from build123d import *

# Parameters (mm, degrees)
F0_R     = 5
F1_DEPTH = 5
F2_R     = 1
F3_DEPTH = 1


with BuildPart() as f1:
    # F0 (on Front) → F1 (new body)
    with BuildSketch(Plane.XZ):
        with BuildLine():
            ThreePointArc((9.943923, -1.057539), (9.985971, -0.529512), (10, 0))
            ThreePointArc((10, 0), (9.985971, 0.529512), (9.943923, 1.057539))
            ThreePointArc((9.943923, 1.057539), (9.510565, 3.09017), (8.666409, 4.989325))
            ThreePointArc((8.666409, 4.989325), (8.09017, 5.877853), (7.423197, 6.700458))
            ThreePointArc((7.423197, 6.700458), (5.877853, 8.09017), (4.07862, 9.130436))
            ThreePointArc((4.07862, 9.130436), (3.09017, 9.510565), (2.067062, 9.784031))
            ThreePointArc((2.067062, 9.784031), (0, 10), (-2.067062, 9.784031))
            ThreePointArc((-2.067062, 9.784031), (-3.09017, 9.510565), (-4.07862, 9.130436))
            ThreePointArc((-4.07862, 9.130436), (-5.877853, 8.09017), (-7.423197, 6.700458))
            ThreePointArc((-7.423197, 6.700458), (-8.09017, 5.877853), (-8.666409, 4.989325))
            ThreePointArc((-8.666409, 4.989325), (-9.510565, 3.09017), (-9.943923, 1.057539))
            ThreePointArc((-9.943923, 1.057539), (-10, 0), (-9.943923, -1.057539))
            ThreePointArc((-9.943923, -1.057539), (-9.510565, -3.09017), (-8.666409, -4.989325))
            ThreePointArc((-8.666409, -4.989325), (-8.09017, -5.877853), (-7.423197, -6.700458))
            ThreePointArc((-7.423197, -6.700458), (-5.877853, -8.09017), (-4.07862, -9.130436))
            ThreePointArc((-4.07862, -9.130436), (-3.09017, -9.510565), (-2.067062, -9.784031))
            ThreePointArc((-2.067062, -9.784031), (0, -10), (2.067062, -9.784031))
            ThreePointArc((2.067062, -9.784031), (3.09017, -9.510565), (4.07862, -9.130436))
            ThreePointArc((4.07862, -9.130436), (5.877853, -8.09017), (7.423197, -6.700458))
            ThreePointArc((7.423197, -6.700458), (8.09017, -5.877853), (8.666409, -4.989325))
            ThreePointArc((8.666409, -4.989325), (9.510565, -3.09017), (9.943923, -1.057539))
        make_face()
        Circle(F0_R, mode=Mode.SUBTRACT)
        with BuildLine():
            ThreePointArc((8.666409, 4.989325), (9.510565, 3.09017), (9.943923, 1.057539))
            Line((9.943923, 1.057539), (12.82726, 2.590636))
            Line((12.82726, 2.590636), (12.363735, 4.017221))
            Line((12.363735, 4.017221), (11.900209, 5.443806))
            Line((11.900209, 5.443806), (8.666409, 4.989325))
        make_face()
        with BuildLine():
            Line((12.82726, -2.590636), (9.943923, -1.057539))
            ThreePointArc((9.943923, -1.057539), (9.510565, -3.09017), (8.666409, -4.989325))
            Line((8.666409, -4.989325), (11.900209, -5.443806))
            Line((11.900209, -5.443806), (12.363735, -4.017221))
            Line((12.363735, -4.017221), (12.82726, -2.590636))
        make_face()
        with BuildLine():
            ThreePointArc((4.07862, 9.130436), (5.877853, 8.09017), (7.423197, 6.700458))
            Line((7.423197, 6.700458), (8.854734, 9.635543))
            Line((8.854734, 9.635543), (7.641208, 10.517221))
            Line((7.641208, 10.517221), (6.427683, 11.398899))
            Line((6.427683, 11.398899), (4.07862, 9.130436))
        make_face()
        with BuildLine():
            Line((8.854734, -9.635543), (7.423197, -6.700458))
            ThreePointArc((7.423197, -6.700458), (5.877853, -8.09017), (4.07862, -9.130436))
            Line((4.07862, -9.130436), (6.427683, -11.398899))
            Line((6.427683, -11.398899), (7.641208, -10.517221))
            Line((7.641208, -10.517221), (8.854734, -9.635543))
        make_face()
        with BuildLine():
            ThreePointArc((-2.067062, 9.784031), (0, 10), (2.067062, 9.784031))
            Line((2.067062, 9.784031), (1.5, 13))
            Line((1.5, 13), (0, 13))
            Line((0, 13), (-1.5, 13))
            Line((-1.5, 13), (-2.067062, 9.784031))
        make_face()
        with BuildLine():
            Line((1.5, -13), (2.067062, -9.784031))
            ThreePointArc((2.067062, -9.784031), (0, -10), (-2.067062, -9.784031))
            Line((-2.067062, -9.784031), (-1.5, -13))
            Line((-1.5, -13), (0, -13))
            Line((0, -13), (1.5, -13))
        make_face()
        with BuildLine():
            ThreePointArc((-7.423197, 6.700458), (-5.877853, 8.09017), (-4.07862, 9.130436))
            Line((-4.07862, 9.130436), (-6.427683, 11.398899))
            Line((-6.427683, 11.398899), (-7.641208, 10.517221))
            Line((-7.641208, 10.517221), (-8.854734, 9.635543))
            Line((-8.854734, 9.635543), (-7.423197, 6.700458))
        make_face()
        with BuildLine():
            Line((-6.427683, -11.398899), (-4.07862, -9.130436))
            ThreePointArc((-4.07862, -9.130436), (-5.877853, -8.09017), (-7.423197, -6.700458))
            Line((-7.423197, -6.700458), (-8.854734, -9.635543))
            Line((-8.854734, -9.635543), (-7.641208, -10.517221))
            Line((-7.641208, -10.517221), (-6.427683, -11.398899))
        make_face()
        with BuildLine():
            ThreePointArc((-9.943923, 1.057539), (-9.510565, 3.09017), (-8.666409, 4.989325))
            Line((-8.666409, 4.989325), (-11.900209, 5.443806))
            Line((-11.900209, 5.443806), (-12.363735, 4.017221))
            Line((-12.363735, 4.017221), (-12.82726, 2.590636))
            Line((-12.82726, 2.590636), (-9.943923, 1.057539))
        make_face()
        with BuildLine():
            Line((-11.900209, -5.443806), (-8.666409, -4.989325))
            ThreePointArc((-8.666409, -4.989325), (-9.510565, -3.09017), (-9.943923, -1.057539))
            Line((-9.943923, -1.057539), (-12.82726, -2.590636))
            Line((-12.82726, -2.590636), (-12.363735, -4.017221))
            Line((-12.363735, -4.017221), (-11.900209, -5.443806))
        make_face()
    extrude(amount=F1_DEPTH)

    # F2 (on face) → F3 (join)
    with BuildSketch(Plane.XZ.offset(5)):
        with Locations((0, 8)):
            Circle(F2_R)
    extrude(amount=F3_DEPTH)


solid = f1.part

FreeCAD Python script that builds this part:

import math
import FreeCAD as App
import Part
import Sketcher
from FreeCAD import Vector
Q = App.Units.Quantity

doc = App.newDocument("Part")
body = doc.addObject("PartDesign::Body", "Body")

# Sketch on XZ plane
sketch1 = body.newObject("Sketcher::SketchObject", "Sketch")
sketch1.AttachmentSupport = (doc.getObject("XZ_Plane"), [""])
sketch1.MapMode = "FlatFace"
sketch1.addGeometry([
    Part.ArcOfCircle(Part.Circle(Vector(0.00011, -0.000003, 0), Vector(0, 0, 1), 9.99989), math.radians(-6.070655), math.radians(0.000015)),  # 0
    Part.ArcOfCircle(Part.Circle(Vector(0.00011, 0.000003, 0), Vector(0, 0, 1), 9.99989), math.radians(-0.000015), math.radians(6.070655)),  # 1
    Part.LineSegment(Vector(9.943923, 1.057539, 0), Vector(12.82726, 2.590636, 0)),  # 2
    Part.LineSegment(Vector(12.82726, 2.590636, 0), Vector(12.363735, 4.017221, 0)),  # 3
    Part.LineSegment(Vector(12.363735, 4.017221, 0), Vector(11.900209, 5.443806, 0)),  # 4
    Part.LineSegment(Vector(11.900209, 5.443806, 0), Vector(8.666409, 4.989325, 0)),  # 5
    Part.ArcOfCircle(Part.Circle(Vector(0.000049, 0.000031, 0), Vector(0, 0, 1), 9.999942), math.radians(29.929387), math.radians(42.070661)),  # 6
    Part.LineSegment(Vector(7.423197, 6.700458, 0), Vector(8.854734, 9.635543, 0)),  # 7
    Part.LineSegment(Vector(8.854734, 9.635543, 0), Vector(7.641208, 10.517221, 0)),  # 8
    Part.LineSegment(Vector(7.641208, 10.517221, 0), Vector(6.427683, 11.398899, 0)),  # 9
    Part.LineSegment(Vector(6.427683, 11.398899, 0), Vector(4.07862, 9.130436, 0)),  # 10
    Part.ArcOfCircle(Part.Circle(Vector(-0.000023, -0.000068, 0), Vector(0, 0, 1), 10.000072), math.radians(65.929437), math.radians(78.070553)),  # 11
    Part.LineSegment(Vector(2.067062, 9.784031, 0), Vector(1.5, 13, 0)),  # 12
    Part.LineSegment(Vector(1.5, 13, 0), Vector(-1.5, 13, 0)),  # 13
    Part.LineSegment(Vector(-1.5, 13, 0), Vector(-2.067062, 9.784031, 0)),  # 14
    Part.ArcOfCircle(Part.Circle(Vector(0.000023, -0.000068, 0), Vector(0, 0, 1), 10.000072), math.radians(101.929447), math.radians(114.070563)),  # 15
    Part.LineSegment(Vector(-4.07862, 9.130436, 0), Vector(-6.427683, 11.398899, 0)),  # 16
    Part.LineSegment(Vector(-6.427683, 11.398899, 0), Vector(-7.641208, 10.517221, 0)),  # 17
    Part.LineSegment(Vector(-7.641208, 10.517221, 0), Vector(-8.854734, 9.635543, 0)),  # 18
    Part.LineSegment(Vector(-8.854734, 9.635543, 0), Vector(-7.423197, 6.700458, 0)),  # 19
    Part.ArcOfCircle(Part.Circle(Vector(-0.000049, 0.000031, 0), Vector(0, 0, 1), 9.999942), math.radians(137.929339), math.radians(150.070613)),  # 20
    Part.LineSegment(Vector(-8.666409, 4.989325, 0), Vector(-11.900209, 5.443806, 0)),  # 21
    Part.LineSegment(Vector(-11.900209, 5.443806, 0), Vector(-12.363735, 4.017221, 0)),  # 22
    Part.LineSegment(Vector(-12.363735, 4.017221, 0), Vector(-12.82726, 2.590636, 0)),  # 23
    Part.LineSegment(Vector(-12.82726, 2.590636, 0), Vector(-9.943923, 1.057539, 0)),  # 24
    Part.ArcOfCircle(Part.Circle(Vector(-0.000059, 0, 0), Vector(0, 0, 1), 9.999941), math.radians(173.92936), math.radians(186.07064)),  # 25
    Part.LineSegment(Vector(-9.943923, -1.057539, 0), Vector(-12.82726, -2.590636, 0)),  # 26
    Part.LineSegment(Vector(-12.82726, -2.590636, 0), Vector(-12.363735, -4.017221, 0)),  # 27
    Part.LineSegment(Vector(-12.363735, -4.017221, 0), Vector(-11.900209, -5.443806, 0)),  # 28
    Part.LineSegment(Vector(-11.900209, -5.443806, 0), Vector(-8.666409, -4.989325, 0)),  # 29
    Part.ArcOfCircle(Part.Circle(Vector(-0.000049, -0.000031, 0), Vector(0, 0, 1), 9.999942), math.radians(-150.070613), math.radians(-137.929339)),  # 30
    Part.LineSegment(Vector(-7.423197, -6.700458, 0), Vector(-8.854734, -9.635543, 0)),  # 31
    Part.LineSegment(Vector(-8.854734, -9.635543, 0), Vector(-7.641208, -10.517221, 0)),  # 32
    Part.LineSegment(Vector(-7.641208, -10.517221, 0), Vector(-6.427683, -11.398899, 0)),  # 33
    Part.LineSegment(Vector(-6.427683, -11.398899, 0), Vector(-4.07862, -9.130436, 0)),  # 34
    Part.ArcOfCircle(Part.Circle(Vector(0.000023, 0.000068, 0), Vector(0, 0, 1), 10.000072), math.radians(-114.070563), math.radians(-101.929447)),  # 35
    Part.LineSegment(Vector(-2.067062, -9.784031, 0), Vector(-1.5, -13, 0)),  # 36
    Part.LineSegment(Vector(-1.5, -13, 0), Vector(1.5, -13, 0)),  # 37
    Part.LineSegment(Vector(1.5, -13, 0), Vector(2.067062, -9.784031, 0)),  # 38
    Part.ArcOfCircle(Part.Circle(Vector(-0.000023, 0.000068, 0), Vector(0, 0, 1), 10.000072), math.radians(-78.070553), math.radians(-65.929437)),  # 39
    Part.LineSegment(Vector(4.07862, -9.130436, 0), Vector(6.427683, -11.398899, 0)),  # 40
    Part.LineSegment(Vector(6.427683, -11.398899, 0), Vector(7.641208, -10.517221, 0)),  # 41
    Part.LineSegment(Vector(7.641208, -10.517221, 0), Vector(8.854734, -9.635543, 0)),  # 42
    Part.LineSegment(Vector(8.854734, -9.635543, 0), Vector(7.423197, -6.700458, 0)),  # 43
    Part.ArcOfCircle(Part.Circle(Vector(0.000049, -0.000031, 0), Vector(0, 0, 1), 9.999942), math.radians(-42.070661), math.radians(-29.929387)),  # 44
    Part.LineSegment(Vector(8.666409, -4.989325, 0), Vector(11.900209, -5.443806, 0)),  # 45
    Part.LineSegment(Vector(11.900209, -5.443806, 0), Vector(12.363735, -4.017221, 0)),  # 46
    Part.LineSegment(Vector(12.363735, -4.017221, 0), Vector(12.82726, -2.590636, 0)),  # 47
    Part.LineSegment(Vector(12.82726, -2.590636, 0), Vector(9.943923, -1.057539, 0)),  # 48
    Part.Circle(Vector(0, 0, 0), Vector(0, 0, 1), 5),  # 49
], False)
sketch1.addConstraint([
    Sketcher.Constraint("Tangent", 0, 2, 1, 1),
    Sketcher.Constraint("Coincident", 1, 2, 2, 1),
    Sketcher.Constraint("Coincident", 2, 2, 3, 1),
    Sketcher.Constraint("Coincident", 3, 2, 4, 1),
    Sketcher.Constraint("Coincident", 4, 2, 5, 1),
    Sketcher.Constraint("Coincident", 5, 2, 6, 1),
    Sketcher.Constraint("Coincident", 6, 2, 7, 1),
    Sketcher.Constraint("Coincident", 7, 2, 8, 1),
    Sketcher.Constraint("Coincident", 8, 2, 9, 1),
    Sketcher.Constraint("Coincident", 9, 2, 10, 1),
    Sketcher.Constraint("Coincident", 10, 2, 11, 1),
    Sketcher.Constraint("Coincident", 11, 2, 12, 1),
    Sketcher.Constraint("Coincident", 12, 2, 13, 1),
    Sketcher.Constraint("Coincident", 13, 2, 14, 1),
    Sketcher.Constraint("Coincident", 14, 2, 15, 1),
    Sketcher.Constraint("Coincident", 15, 2, 16, 1),
    Sketcher.Constraint("Coincident", 16, 2, 17, 1),
    Sketcher.Constraint("Coincident", 17, 2, 18, 1),
    Sketcher.Constraint("Coincident", 18, 2, 19, 1),
    Sketcher.Constraint("Coincident", 19, 2, 20, 1),
    Sketcher.Constraint("Coincident", 20, 2, 21, 1),
    Sketcher.Constraint("Coincident", 21, 2, 22, 1),
    Sketcher.Constraint("Coincident", 22, 2, 23, 1),
    Sketcher.Constraint("Coincident", 23, 2, 24, 1),
    Sketcher.Constraint("Coincident", 24, 2, 25, 1),
    Sketcher.Constraint("Coincident", 25, 2, 26, 1),
    Sketcher.Constraint("Coincident", 26, 2, 27, 1),
    Sketcher.Constraint("Coincident", 27, 2, 28, 1),
    Sketcher.Constraint("Coincident", 28, 2, 29, 1),
    Sketcher.Constraint("Coincident", 29, 2, 30, 1),
    Sketcher.Constraint("Coincident", 30, 2, 31, 1),
    Sketcher.Constraint("Coincident", 31, 2, 32, 1),
    Sketcher.Constraint("Coincident", 32, 2, 33, 1),
    Sketcher.Constraint("Coincident", 33, 2, 34, 1),
    Sketcher.Constraint("Coincident", 34, 2, 35, 1),
    Sketcher.Constraint("Coincident", 35, 2, 36, 1),
    Sketcher.Constraint("Coincident", 36, 2, 37, 1),
    Sketcher.Constraint("Coincident", 37, 2, 38, 1),
    Sketcher.Constraint("Coincident", 38, 2, 39, 1),
    Sketcher.Constraint("Coincident", 39, 2, 40, 1),
    Sketcher.Constraint("Coincident", 40, 2, 41, 1),
    Sketcher.Constraint("Coincident", 41, 2, 42, 1),
    Sketcher.Constraint("Coincident", 42, 2, 43, 1),
    Sketcher.Constraint("Coincident", 43, 2, 44, 1),
    Sketcher.Constraint("Coincident", 44, 2, 45, 1),
    Sketcher.Constraint("Coincident", 45, 2, 46, 1),
    Sketcher.Constraint("Coincident", 46, 2, 47, 1),
    Sketcher.Constraint("Coincident", 47, 2, 48, 1),
    Sketcher.Constraint("Coincident", 48, 2, 0, 1),
    Sketcher.Constraint("Horizontal", 13),
    Sketcher.Constraint("Horizontal", 37),
    Sketcher.Constraint("Coincident", 49, 3, -1, 1),
    Sketcher.Constraint("Equal", 0, 1),
    Sketcher.Constraint("Equal", 11, 15),
    Sketcher.Constraint("Equal", 6, 20),
    Sketcher.Constraint("Equal", 20, 25),
    Sketcher.Constraint("Equal", 25, 30),
    Sketcher.Constraint("Equal", 15, 35),
    Sketcher.Constraint("Equal", 35, 39),
    Sketcher.Constraint("Equal", 30, 44),
    Sketcher.Constraint("Symmetric", 6, 3, 30, 3, -1, 1),
    Sketcher.Constraint("Symmetric", 11, 3, 35, 3, -1, 1),
    Sketcher.Constraint("Symmetric", 15, 3, 39, 3, -1, 1),
    Sketcher.Constraint("Symmetric", 20, 3, 44, 3, -1, 1),
    Sketcher.Constraint("Symmetric", 1, 2, 25, 2, -1, 1),
    Sketcher.Constraint("Symmetric", 2, 2, 26, 2, -1, 1),
    Sketcher.Constraint("Symmetric", 3, 2, 27, 2, -1, 1),
    Sketcher.Constraint("Symmetric", 4, 2, 28, 2, -1, 1),
    Sketcher.Constraint("Symmetric", 7, 2, 31, 2, -1, 1),
    Sketcher.Constraint("Symmetric", 8, 2, 32, 2, -1, 1),
    Sketcher.Constraint("Symmetric", 9, 2, 33, 2, -1, 1),
    Sketcher.Constraint("Symmetric", 12, 2, 36, 2, -1, 1),
    Sketcher.Constraint("Symmetric", 16, 2, 40, 2, -1, 1),
    Sketcher.Constraint("Symmetric", 17, 2, 41, 2, -1, 1),
    Sketcher.Constraint("Symmetric", 18, 2, 42, 2, -1, 1),
    Sketcher.Constraint("Symmetric", 21, 2, 45, 2, -1, 1),
    Sketcher.Constraint("Symmetric", 22, 2, 46, 2, -1, 1),
    Sketcher.Constraint("Symmetric", 23, 2, 47, 2, -1, 1),
    Sketcher.Constraint("Symmetric", 24, 2, 48, 2, -1, 1),
    Sketcher.Constraint("Symmetric", 11, 3, 15, 3, -2),
    Sketcher.Constraint("Symmetric", 6, 3, 20, 3, -2),
    Sketcher.Constraint("Symmetric", 9, 2, 16, 2, -2),
    Sketcher.Constraint("Symmetric", 8, 2, 17, 2, -2),
    Sketcher.Constraint("Symmetric", 7, 2, 18, 2, -2),
    Sketcher.Constraint("Symmetric", 4, 2, 21, 2, -2),
    Sketcher.Constraint("Symmetric", 3, 2, 22, 2, -2),
    Sketcher.Constraint("Symmetric", 2, 2, 23, 2, -2),
    Sketcher.Constraint("Symmetric", 1, 2, 24, 2, -2),
    Sketcher.Constraint("PointOnObject", 0, 2, -1),
    Sketcher.Constraint("Parallel", 3, 4),
    Sketcher.Constraint("Parallel", 8, 9),
    Sketcher.Constraint("Parallel", 5, 29),
    Sketcher.Constraint("Parallel", 7, 31),
    Sketcher.Constraint("Parallel", 10, 34),
    Sketcher.Constraint("Parallel", 12, 36),
    Sketcher.Constraint("Parallel", 14, 38),
    Sketcher.Constraint("Parallel", 16, 40),
    Sketcher.Constraint("Parallel", 19, 43),
    Sketcher.Constraint("Parallel", 21, 45),
    Sketcher.Constraint("Horizontal", 11, 2, 14, 2),
    Sketcher.Constraint("Horizontal", 10, 2, 15, 2),
    Sketcher.Constraint("Horizontal", 6, 2, 19, 2),
    Sketcher.Constraint("Horizontal", 5, 2, 20, 2),
    Sketcher.Constraint("Horizontal", 35, 2, 38, 2),
    Sketcher.Constraint("Vertical", 13, 2, 36, 2),
    Sketcher.Constraint("Equal", 3, 4),
    Sketcher.Constraint("Equal", 2, 5),
    Sketcher.Constraint("Equal", 5, 7),
    Sketcher.Constraint("Equal", 4, 8),
    Sketcher.Constraint("Equal", 8, 9),
    Sketcher.Constraint("Equal", 7, 10),
    Sketcher.Constraint("Equal", 10, 12),
    Sketcher.Constraint("Diameter", 49, 10.0),
    Sketcher.Constraint("DistanceX", 13, 2, 13, 1, 3.0),
    Sketcher.Constraint("Angle", 2, Q("27.999993 deg")),
    Sketcher.Constraint("Angle", 4, Q("108.000016 deg")),
    Sketcher.Constraint("Angle", 5, Q("-171.999999 deg")),
    Sketcher.Constraint("Angle", 7, Q("63.999994 deg")),
    Sketcher.Constraint("Angle", 8, Q("144.000008 deg")),
    Sketcher.Constraint("Angle", 10, Q("-136.00001 deg")),
    Sketcher.Constraint("Angle", 12, Q("99.999998 deg")),
    Sketcher.Constraint("DistanceX", -1, 1, 0, 2, 10.0),
    Sketcher.Constraint("DistanceY", -1, 1, 12, 2, 13.0),
    Sketcher.Constraint("Distance", 3, 1.5),
    Sketcher.Constraint("Radius", 0, 9.99989),
    Sketcher.Constraint("Radius", 11, 10.000072),
    Sketcher.Constraint("Radius", 25, 9.999941),
    Sketcher.Constraint("DistanceY", -1, 1, 9, 2, 11.398899),
    Sketcher.Constraint("Distance", 2, 3.265581),
    Sketcher.Constraint("DistanceY", -1, 1, 1, 2, 1.057539),
    Sketcher.Constraint("DistanceX", -1, 1, 10, 2, 4.07862),
])
pad1 = body.newObject("PartDesign::Pad", "Pad")
pad1.Profile = sketch1
pad1.Length = 5

# Sketch on XZ plane
sketch2 = body.newObject("Sketcher::SketchObject", "Sketch001")
sketch2.AttachmentSupport = (doc.getObject("XZ_Plane"), [""])
sketch2.MapMode = "FlatFace"
sketch2.AttachmentOffset = App.Placement(Vector(0, 0, 5), App.Rotation())
sketch2.addGeometry(Part.Circle(Vector(0, 8, 0), Vector(0, 0, 1), 1), False)
sketch2.addConstraint([
    Sketcher.Constraint("PointOnObject", 0, 3, -2),
    Sketcher.Constraint("Diameter", 0, 2.0),
    Sketcher.Constraint("DistanceY", -1, 1, 0, 3, 8.0),
])
pad2 = body.newObject("PartDesign::Pad", "Pad001")
pad2.Profile = sketch2
pad2.Length = 1

doc.recompute()
